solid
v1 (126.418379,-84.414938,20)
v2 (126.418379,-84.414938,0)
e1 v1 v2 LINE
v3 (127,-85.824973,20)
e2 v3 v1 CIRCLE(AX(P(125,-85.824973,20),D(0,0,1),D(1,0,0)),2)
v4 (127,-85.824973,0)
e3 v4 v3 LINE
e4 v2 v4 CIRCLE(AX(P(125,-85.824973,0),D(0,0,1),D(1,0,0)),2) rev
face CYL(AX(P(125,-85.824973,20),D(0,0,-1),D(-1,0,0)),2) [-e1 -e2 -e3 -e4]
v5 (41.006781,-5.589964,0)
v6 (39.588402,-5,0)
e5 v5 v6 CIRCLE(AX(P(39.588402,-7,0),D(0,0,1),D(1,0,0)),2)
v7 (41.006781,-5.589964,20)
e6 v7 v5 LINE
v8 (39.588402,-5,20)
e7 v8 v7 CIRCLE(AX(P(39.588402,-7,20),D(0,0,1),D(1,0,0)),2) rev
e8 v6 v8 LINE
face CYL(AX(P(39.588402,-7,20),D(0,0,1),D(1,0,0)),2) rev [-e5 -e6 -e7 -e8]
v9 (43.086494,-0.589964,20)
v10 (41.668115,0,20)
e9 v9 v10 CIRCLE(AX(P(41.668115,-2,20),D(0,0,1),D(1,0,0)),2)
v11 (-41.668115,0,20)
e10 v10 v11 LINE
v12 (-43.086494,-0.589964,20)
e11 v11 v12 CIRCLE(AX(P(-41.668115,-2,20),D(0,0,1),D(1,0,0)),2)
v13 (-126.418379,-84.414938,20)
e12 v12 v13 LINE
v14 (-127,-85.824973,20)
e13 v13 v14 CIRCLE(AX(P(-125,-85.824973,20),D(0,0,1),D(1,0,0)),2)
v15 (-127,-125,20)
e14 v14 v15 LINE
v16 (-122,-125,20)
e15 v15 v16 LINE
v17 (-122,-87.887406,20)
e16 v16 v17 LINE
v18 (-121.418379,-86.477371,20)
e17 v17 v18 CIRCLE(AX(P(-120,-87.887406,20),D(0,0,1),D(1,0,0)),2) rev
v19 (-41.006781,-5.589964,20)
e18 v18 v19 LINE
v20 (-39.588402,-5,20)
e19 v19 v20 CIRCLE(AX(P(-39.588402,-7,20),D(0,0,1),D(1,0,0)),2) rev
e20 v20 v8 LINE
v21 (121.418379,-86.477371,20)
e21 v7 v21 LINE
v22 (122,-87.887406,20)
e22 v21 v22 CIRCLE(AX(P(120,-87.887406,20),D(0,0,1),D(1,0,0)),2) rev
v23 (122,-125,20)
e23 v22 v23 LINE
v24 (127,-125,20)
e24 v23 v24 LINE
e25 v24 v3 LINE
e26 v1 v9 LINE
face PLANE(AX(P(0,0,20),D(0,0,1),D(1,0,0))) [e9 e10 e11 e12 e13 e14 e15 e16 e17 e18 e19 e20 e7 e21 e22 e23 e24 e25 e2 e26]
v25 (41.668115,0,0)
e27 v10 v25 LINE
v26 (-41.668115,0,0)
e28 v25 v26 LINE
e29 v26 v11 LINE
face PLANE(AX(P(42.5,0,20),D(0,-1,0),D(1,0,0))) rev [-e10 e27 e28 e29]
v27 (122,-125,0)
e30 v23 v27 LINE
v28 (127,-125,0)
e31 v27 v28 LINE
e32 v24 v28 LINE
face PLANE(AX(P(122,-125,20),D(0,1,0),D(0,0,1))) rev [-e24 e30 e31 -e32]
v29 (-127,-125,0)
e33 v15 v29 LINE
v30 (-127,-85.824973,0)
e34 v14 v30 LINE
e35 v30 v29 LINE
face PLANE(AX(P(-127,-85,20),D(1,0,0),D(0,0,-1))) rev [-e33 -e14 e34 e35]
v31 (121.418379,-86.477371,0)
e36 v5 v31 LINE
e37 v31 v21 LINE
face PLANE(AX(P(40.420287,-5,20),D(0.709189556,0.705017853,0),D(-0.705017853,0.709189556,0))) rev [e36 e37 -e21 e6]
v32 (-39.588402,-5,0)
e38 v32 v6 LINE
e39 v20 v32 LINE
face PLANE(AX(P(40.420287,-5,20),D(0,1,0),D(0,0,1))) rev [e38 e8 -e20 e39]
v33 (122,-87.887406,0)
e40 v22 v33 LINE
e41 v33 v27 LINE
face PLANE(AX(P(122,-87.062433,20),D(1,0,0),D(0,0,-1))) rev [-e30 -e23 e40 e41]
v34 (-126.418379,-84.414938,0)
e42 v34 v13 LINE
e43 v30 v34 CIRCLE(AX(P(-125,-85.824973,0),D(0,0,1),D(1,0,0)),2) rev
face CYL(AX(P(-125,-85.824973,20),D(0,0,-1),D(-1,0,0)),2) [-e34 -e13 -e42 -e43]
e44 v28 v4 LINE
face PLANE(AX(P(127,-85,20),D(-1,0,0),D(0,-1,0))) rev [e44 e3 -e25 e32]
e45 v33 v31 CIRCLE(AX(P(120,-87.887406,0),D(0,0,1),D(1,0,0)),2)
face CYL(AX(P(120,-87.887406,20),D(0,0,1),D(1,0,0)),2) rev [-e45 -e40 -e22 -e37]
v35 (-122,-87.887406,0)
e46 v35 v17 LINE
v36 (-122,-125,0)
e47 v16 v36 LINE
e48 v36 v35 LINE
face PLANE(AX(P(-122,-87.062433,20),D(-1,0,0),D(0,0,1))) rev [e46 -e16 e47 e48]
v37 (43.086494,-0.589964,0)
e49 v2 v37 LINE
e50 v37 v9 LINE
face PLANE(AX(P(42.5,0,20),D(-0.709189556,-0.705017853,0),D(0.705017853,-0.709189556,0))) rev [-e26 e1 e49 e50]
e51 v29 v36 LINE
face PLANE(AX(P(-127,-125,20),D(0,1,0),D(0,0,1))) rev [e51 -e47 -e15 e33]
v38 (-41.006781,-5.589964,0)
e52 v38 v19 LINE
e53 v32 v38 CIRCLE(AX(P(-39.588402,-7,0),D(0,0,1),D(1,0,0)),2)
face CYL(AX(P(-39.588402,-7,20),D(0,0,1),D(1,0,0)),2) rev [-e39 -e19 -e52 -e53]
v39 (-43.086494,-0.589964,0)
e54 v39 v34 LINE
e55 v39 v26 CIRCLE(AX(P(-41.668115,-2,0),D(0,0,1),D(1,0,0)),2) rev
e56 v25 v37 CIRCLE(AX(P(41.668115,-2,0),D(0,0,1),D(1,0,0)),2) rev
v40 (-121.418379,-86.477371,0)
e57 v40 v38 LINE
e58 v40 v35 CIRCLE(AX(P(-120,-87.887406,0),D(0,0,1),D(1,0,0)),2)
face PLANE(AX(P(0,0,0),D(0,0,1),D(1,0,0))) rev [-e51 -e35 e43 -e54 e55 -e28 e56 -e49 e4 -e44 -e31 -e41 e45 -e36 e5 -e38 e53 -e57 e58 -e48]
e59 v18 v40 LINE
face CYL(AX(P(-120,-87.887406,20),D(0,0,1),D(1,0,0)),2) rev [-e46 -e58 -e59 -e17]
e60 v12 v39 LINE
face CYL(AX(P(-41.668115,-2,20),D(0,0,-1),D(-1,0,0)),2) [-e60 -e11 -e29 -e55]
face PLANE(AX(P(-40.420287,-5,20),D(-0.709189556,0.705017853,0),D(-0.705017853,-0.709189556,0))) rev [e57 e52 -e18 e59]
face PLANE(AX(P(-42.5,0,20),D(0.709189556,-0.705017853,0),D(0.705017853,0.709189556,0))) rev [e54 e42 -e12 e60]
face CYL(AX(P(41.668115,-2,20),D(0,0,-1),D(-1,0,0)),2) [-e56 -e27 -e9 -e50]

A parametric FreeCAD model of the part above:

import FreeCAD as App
import Part
import Sketcher


def edges_at(feature, points):
    """Names of the edges that pass closest to the given points."""
    edges = feature.Shape.Edges
    near = lambda p: min(range(len(edges)), key=lambda i: edges[i].distToShape(Part.Vertex(*p))[0])
    return sorted({f"Edge{near(p) + 1}" for p in points})

doc = App.newDocument("Part")
body = doc.addObject("PartDesign::Body", "Body")

sketch1 = body.newObject("Sketcher::SketchObject", "Sketch")
sketch1.AttachmentSupport = (doc.getObject("XY_Plane"), [""])
sketch1.MapMode = "FlatFace"
sketch1.addGeometry([
    Part.LineSegment(App.Vector(42, 0, 0), App.Vector(-42, 0, 0)),
    Part.LineSegment(App.Vector(-42, 0, 0), App.Vector(-127, -85, 0)),
    Part.LineSegment(App.Vector(-127, -85, 0), App.Vector(-127, -125, 0)),
    Part.LineSegment(App.Vector(-127, -125, 0), App.Vector(-122, -125, 0)),
    Part.LineSegment(App.Vector(-122, -125, 0), App.Vector(-122, -87, 0)),
    Part.LineSegment(App.Vector(-122, -87, 0), App.Vector(-40, -5, 0)),
    Part.LineSegment(App.Vector(-40, -5, 0), App.Vector(40, -5, 0)),
    Part.LineSegment(App.Vector(40, -5, 0), App.Vector(122, -87, 0)),
    Part.LineSegment(App.Vector(122, -87, 0), App.Vector(122, -125, 0)),
    Part.LineSegment(App.Vector(122, -125, 0), App.Vector(127, -125, 0)),
    Part.LineSegment(App.Vector(127, -125, 0), App.Vector(127, -85, 0)),
    Part.LineSegment(App.Vector(127, -85, 0), App.Vector(42, 0, 0)),
], False)
sketch1.addConstraint([
    Sketcher.Constraint("Coincident", 0, 2, 1, 1),
    Sketcher.Constraint("Coincident", 1, 2, 2, 1),
    Sketcher.Constraint("Coincident", 2, 2, 3, 1),
    Sketcher.Constraint("Coincident", 3, 2, 4, 1),
    Sketcher.Constraint("Coincident", 4, 2, 5, 1),
    Sketcher.Constraint("Coincident", 5, 2, 6, 1),
    Sketcher.Constraint("Coincident", 6, 2, 7, 1),
    Sketcher.Constraint("Coincident", 7, 2, 8, 1),
    Sketcher.Constraint("Coincident", 8, 2, 9, 1),
    Sketcher.Constraint("Coincident", 9, 2, 10, 1),
    Sketcher.Constraint("Coincident", 10, 2, 11, 1),
    Sketcher.Constraint("Coincident", 11, 2, 0, 1),
    Sketcher.Constraint("Horizontal", 0),
    Sketcher.Constraint("Vertical", 2),
    Sketcher.Constraint("Horizontal", 3),
    Sketcher.Constraint("Vertical", 4),
    Sketcher.Constraint("Horizontal", 6),
    Sketcher.Constraint("Vertical", 8),
    Sketcher.Constraint("Horizontal", 9),
    Sketcher.Constraint("Vertical", 10),
    Sketcher.Constraint("Symmetric", 0, 2, 11, 2, -1, 1),
    Sketcher.Constraint("Symmetric", 4, 2, 7, 2, -2),
    Sketcher.Constraint("Symmetric", 2, 2, 9, 2, -2),
    Sketcher.Constraint("Parallel", 1, 5),
    Sketcher.Constraint("Parallel", 7, 11),
    Sketcher.Constraint("Horizontal", 1, 2, 10, 2),
    Sketcher.Constraint("DistanceX", 0, 2, 0, 1, 85.0),
    Sketcher.Constraint("DistanceX", 3, 1, 3, 2, 5.0),
    Sketcher.Constraint("DistanceY", 2, 2, 2, 1, 40.0),
    Sketcher.Constraint("DistanceX", 1, 2, -1, 1, 127.0),
    Sketcher.Constraint("DistanceY", 1, 2, -1, 1, 85.0),
    Sketcher.Constraint("DistanceY", 5, 2, -1, 1, 5.0),
    Sketcher.Constraint("DistanceX", 6, 1, 6, 2, 80.840574),
])
pad1 = body.newObject("PartDesign::Pad", "Pad")
pad1.Profile = sketch1
pad1.Length = 20
doc.recompute()

fillet = body.newObject("PartDesign::Fillet", "Fillet")
fillet.Base = (pad1, edges_at(pad1, [
    (122, -87.062, 10),
    (40.42, -5, 10),
    (-40.42, -5, 10),
    (-122, -87.062, 10),
    (-127, -85, 10),
    (-42.5, 0, 10),
    (42.5, 0, 10),
    (127, -85, 10),
]))
fillet.Radius = 2

doc.recompute()
